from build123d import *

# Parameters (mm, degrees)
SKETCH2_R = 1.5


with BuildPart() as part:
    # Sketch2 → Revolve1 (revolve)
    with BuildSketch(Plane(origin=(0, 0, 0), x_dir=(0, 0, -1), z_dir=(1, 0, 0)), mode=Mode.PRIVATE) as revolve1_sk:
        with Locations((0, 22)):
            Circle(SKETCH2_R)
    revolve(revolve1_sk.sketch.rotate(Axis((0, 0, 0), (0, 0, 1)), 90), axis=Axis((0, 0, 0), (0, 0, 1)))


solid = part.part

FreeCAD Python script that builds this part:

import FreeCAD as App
import Part
import Sketcher
Q = App.Units.Quantity

doc = App.newDocument("Part")
body = doc.addObject("PartDesign::Body", "Body")

# Sketch on YZ plane
sketch1 = body.newObject("Sketcher::SketchObject", "Sketch")
sketch1.AttachmentSupport = (doc.getObject("YZ_Plane"), [""])
sketch1.MapMode = "FlatFace"
sketch1.addGeometry(Part.Circle(App.Vector(22, 0, 0), App.Vector(0, 0, 1), 1.5), False)
sketch1.addConstraint([
    Sketcher.Constraint("PointOnObject", 0, 3, -1),
    Sketcher.Constraint("Diameter", 0, Q("3 mm")),
    Sketcher.Constraint("DistanceX", -1, 1, 0, 3, Q("22 mm")),
])
revolution = body.newObject("PartDesign::Revolution", "Revolution")
revolution.Profile = sketch1
revolution.ReferenceAxis = (sketch1, ["V_Axis"])
revolution.Angle = 360

doc.recompute()
